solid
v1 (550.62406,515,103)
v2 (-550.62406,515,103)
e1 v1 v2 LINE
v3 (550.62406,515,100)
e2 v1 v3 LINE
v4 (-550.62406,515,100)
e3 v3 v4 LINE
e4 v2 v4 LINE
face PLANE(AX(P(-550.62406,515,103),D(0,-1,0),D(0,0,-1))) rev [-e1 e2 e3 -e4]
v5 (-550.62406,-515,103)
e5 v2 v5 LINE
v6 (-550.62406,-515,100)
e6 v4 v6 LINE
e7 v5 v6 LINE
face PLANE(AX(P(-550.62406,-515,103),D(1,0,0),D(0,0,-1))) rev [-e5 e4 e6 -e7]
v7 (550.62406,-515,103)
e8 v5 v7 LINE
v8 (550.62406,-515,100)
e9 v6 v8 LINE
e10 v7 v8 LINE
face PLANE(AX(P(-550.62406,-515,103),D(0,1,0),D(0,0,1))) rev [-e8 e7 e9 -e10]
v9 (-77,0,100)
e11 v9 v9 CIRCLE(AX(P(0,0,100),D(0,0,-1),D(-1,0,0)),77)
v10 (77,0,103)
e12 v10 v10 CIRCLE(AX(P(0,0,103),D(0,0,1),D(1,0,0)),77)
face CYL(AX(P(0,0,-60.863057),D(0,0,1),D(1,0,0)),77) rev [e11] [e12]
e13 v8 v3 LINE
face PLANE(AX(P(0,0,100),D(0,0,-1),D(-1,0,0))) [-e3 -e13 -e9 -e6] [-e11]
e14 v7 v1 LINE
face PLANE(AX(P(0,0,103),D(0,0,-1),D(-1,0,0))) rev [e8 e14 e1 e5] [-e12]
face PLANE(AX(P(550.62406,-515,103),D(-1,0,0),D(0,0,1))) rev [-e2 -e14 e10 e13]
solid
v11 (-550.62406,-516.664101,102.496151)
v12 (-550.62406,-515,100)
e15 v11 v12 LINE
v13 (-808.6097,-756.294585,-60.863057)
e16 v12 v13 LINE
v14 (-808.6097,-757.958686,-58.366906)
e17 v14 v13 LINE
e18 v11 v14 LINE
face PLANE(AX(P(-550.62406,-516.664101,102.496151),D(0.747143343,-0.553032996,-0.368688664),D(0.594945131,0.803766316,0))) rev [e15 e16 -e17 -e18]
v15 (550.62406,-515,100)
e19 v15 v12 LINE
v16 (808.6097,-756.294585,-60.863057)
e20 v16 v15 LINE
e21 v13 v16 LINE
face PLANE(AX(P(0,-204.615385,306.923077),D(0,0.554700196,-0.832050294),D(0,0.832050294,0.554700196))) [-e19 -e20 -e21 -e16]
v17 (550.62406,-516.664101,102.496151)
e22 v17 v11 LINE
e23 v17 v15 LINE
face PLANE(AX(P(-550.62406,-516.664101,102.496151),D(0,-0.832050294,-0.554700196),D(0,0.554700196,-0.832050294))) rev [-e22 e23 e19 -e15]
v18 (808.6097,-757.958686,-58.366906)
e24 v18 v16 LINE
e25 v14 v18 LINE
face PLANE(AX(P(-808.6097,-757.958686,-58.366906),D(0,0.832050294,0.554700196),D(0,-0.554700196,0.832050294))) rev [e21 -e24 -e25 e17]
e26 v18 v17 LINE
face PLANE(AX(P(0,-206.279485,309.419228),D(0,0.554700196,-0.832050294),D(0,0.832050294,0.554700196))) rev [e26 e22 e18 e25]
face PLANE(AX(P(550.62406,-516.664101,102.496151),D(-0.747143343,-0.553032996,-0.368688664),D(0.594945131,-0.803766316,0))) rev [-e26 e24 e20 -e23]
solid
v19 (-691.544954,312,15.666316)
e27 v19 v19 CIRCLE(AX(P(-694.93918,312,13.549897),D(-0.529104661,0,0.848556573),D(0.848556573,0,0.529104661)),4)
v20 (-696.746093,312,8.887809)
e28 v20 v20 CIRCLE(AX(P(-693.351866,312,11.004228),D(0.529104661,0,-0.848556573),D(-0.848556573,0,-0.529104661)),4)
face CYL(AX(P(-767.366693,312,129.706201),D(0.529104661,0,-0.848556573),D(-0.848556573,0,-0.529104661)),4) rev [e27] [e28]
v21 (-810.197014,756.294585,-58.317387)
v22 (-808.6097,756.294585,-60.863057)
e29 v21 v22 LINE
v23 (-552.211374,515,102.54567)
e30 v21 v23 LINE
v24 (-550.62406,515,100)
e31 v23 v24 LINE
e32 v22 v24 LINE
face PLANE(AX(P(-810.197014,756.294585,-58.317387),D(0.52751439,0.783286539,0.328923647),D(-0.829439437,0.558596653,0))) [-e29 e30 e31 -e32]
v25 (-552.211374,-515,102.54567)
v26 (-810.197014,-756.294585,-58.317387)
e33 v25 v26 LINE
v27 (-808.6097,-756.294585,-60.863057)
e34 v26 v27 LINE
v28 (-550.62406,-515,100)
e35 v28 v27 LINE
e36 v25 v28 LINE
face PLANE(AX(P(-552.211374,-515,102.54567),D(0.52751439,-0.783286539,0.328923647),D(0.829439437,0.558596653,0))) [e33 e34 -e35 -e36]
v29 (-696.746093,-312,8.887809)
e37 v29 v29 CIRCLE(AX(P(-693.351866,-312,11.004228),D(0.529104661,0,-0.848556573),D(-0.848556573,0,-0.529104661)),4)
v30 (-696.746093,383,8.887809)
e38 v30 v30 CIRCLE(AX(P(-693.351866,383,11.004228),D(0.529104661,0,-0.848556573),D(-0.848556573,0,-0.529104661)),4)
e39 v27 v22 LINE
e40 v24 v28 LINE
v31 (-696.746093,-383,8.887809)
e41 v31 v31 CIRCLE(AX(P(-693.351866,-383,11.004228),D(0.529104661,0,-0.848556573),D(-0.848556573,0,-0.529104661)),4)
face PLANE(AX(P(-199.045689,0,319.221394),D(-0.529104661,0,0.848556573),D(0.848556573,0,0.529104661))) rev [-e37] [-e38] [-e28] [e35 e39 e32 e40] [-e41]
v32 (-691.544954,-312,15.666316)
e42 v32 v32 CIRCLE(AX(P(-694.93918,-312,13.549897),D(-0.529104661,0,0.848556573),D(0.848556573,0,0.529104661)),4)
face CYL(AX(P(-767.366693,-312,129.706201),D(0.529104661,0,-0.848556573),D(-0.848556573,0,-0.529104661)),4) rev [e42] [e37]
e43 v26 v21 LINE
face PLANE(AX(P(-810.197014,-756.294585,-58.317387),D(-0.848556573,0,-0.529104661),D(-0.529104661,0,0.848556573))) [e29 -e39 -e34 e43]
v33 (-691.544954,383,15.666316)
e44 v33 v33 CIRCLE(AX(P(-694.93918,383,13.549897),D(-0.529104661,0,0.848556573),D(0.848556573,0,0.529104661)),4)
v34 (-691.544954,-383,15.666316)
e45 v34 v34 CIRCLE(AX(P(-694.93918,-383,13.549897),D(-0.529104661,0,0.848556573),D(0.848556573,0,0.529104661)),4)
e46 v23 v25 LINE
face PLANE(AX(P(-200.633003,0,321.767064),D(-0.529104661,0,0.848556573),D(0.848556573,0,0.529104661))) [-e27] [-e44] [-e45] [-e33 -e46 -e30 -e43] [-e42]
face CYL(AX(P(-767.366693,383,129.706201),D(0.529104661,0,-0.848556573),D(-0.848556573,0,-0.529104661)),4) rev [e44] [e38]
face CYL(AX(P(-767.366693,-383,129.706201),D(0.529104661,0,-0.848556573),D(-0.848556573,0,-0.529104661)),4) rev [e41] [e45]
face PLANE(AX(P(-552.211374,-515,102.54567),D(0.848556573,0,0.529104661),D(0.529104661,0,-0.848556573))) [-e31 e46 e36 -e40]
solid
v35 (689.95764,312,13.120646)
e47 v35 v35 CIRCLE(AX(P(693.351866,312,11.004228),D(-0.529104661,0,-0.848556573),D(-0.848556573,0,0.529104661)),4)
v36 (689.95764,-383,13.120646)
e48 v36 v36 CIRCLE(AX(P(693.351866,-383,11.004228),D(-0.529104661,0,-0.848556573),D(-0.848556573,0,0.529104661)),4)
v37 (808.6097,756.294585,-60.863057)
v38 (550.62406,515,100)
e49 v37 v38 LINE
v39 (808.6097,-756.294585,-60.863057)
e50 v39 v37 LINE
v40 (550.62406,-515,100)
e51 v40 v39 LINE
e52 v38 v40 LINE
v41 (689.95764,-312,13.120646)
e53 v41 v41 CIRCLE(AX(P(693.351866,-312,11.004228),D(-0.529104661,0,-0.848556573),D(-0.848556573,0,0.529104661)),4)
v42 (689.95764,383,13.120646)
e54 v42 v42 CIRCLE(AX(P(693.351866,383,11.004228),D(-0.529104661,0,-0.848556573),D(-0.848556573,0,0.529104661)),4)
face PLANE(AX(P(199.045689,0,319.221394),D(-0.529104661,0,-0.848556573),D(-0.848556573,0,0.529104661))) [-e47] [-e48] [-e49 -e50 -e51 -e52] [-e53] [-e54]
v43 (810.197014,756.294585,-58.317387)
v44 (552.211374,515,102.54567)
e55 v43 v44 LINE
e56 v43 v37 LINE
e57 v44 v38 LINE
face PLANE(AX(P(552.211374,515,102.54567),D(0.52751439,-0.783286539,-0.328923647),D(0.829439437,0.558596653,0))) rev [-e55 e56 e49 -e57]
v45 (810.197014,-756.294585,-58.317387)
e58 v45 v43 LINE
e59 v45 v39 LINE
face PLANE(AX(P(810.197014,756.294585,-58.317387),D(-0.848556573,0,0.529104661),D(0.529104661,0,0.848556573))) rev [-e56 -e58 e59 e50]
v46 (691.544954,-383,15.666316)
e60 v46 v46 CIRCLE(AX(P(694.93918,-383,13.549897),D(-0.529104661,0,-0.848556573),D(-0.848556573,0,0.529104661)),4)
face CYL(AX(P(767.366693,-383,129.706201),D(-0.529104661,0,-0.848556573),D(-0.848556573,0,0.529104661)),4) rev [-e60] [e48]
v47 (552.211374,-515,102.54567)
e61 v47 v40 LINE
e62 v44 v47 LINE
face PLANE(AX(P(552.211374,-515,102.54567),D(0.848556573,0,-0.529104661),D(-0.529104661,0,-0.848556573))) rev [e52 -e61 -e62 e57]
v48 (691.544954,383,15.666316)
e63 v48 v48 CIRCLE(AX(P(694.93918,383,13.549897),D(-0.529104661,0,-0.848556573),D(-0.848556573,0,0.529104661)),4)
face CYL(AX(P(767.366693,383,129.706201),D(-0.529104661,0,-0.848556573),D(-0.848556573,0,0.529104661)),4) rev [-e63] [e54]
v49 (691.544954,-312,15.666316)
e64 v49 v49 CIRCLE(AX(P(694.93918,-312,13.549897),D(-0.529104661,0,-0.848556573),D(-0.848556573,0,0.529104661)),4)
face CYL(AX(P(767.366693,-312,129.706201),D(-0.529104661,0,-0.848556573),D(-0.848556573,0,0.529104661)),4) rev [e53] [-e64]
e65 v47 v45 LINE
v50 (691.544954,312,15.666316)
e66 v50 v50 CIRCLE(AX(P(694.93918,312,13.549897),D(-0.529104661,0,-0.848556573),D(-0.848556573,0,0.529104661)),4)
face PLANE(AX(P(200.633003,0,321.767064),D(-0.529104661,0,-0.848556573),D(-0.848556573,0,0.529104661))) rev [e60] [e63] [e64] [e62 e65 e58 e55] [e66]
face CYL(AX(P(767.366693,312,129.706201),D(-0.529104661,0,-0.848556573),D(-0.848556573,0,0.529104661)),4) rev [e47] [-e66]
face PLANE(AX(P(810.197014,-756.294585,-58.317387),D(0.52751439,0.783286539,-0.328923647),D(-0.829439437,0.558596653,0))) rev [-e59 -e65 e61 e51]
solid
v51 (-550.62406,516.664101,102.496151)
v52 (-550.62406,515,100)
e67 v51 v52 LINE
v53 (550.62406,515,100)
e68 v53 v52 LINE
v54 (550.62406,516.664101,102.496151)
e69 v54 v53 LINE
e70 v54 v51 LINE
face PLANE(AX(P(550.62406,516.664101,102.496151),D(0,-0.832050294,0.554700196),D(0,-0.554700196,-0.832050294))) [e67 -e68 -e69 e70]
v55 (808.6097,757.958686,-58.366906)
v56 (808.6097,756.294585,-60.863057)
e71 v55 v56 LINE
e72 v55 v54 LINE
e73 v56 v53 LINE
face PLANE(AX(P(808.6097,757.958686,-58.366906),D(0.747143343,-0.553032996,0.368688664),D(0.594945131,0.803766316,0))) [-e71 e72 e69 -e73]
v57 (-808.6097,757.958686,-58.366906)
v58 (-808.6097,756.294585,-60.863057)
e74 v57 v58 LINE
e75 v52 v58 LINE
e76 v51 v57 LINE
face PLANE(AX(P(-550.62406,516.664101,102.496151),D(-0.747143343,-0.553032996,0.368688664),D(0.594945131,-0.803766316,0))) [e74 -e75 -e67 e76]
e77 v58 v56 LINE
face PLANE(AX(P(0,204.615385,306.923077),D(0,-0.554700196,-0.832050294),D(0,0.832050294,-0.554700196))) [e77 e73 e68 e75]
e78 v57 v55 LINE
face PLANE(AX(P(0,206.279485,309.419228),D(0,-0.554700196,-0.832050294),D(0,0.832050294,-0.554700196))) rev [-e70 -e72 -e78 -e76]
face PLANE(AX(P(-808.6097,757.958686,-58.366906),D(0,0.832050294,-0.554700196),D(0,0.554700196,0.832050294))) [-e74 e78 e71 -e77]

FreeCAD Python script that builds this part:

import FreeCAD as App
import Part
import Sketcher
from FreeCAD import Vector
Q = App.Units.Quantity

doc = App.newDocument("Part")
body = doc.addObject("PartDesign::Body", "Body")

sketch1 = body.newObject("Sketcher::SketchObject", "Sketch")
sketch1.Placement = App.Placement(Vector(0, -204.615385, 306.923077), App.Rotation(Vector(1, 0, 0), Vector(0, 0.832050294, 0.554700196), Vector(0, -0.554700196, 0.832050294), "ZXY"))
sketch1.addGeometry(Part.LineSegment(Vector(550.62406, -373.035882, 0), Vector(-550.62406, -373.035882, 0)), False)
sketch1.addGeometry(Part.LineSegment(Vector(-550.62406, -373.035882, 0), Vector(-711, -553.313445, 0)), False)
sketch1.addGeometry(Part.LineSegment(Vector(-711, -553.313445, 0), Vector(-808.6097, -663.035881, 0)), False)
sketch1.addGeometry(Part.LineSegment(Vector(-808.6097, -663.035881, 0), Vector(808.6097, -663.035881, 0)), False)
sketch1.addGeometry(Part.LineSegment(Vector(808.6097, -663.035881, 0), Vector(711, -553.313445, 0)), False)
sketch1.addGeometry(Part.LineSegment(Vector(711, -553.313445, 0), Vector(550.62406, -373.035882, 0)), False)
sketch1.addConstraint(Sketcher.Constraint("Coincident", 0, 2, 1, 1))
sketch1.addConstraint(Sketcher.Constraint("Coincident", 1, 2, 2, 1))
sketch1.addConstraint(Sketcher.Constraint("Coincident", 2, 2, 3, 1))
sketch1.addConstraint(Sketcher.Constraint("Coincident", 3, 2, 4, 1))
sketch1.addConstraint(Sketcher.Constraint("Coincident", 4, 2, 5, 1))
sketch1.addConstraint(Sketcher.Constraint("Coincident", 5, 2, 0, 1))
sketch1.addConstraint(Sketcher.Constraint("Horizontal", 0))
sketch1.addConstraint(Sketcher.Constraint("Horizontal", 3))
sketch1.addConstraint(Sketcher.Constraint("Symmetric", 1, 2, 4, 2, -2))
sketch1.addConstraint(Sketcher.Constraint("Parallel", 1, 2))
sketch1.addConstraint(Sketcher.Constraint("Parallel", 4, 5))
sketch1.addConstraint(Sketcher.Constraint("Equal", 2, 4))
sketch1.addConstraint(Sketcher.Constraint("DistanceX", 1, 2, -1, 1, Q("711 mm")))
sketch1.addConstraint(Sketcher.Constraint("DistanceY", 2, 2, 0, 2, Q("290 mm")))
sketch1.addConstraint(Sketcher.Constraint("DistanceX", 3, 1, 3, 2, Q("1617.219399 mm")))
sketch1.addConstraint(Sketcher.Constraint("DistanceX", 0, 2, 0, 1, Q("1101.24812 mm")))
sketch1.addConstraint(Sketcher.Constraint("DistanceY", 0, 2, -1, 1, Q("373.035882 mm")))
pad1 = body.newObject("PartDesign::Pad", "Pad")
pad1.Profile = sketch1
pad1.Length = 3
body2 = doc.addObject("PartDesign::Body", "Body001")

sketch2 = body2.newObject("Sketcher::SketchObject", "Sketch001")
sketch2.Placement = App.Placement(Vector(-199.045689, 0, 319.221394), App.Rotation(Vector(-0.848556573, 0, -0.529104661), Vector(0, 1, 0), Vector(0.529104661, 0, -0.848556573), "ZXY"))
sketch2.addGeometry(Part.LineSegment(Vector(414.325199, 515, 0), Vector(414.325199, -515, 0)), False)
sketch2.addGeometry(Part.LineSegment(Vector(414.325199, -515, 0), Vector(718.354003, -756.294585, 0)), False)
sketch2.addGeometry(Part.LineSegment(Vector(718.354003, -756.294585, 0), Vector(718.354003, 756.294585, 0)), False)
sketch2.addGeometry(Part.LineSegment(Vector(718.354003, 756.294585, 0), Vector(414.325199, 515, 0)), False)
sketch2.addConstraint(Sketcher.Constraint("Coincident", 0, 2, 1, 1))
sketch2.addConstraint(Sketcher.Constraint("Coincident", 1, 2, 2, 1))
sketch2.addConstraint(Sketcher.Constraint("Coincident", 2, 2, 3, 1))
sketch2.addConstraint(Sketcher.Constraint("Coincident", 3, 2, 0, 1))
sketch2.addConstraint(Sketcher.Constraint("Vertical", 0))
sketch2.addConstraint(Sketcher.Constraint("Vertical", 2))
sketch2.addConstraint(Sketcher.Constraint("Equal", 1, 3))
sketch2.addConstraint(Sketcher.Constraint("DistanceY", 0, 2, 0, 1, Q("1030 mm")))
sketch2.addConstraint(Sketcher.Constraint("DistanceY", 0, 2, -1, 1, Q("515 mm")))
sketch2.addConstraint(Sketcher.Constraint("DistanceY", 2, 1, 2, 2, Q("1512.58917 mm")))
sketch2.addConstraint(Sketcher.Constraint("DistanceX", -1, 1, 0, 2, Q("414.325199 mm")))
sketch2.addConstraint(Sketcher.Constraint("Distance", 1, Q("388.145063 mm")))
pad2 = body2.newObject("PartDesign::Pad", "Pad001")
pad2.Profile = sketch2
pad2.Length = 3
pad2.Reversed = True

sketch3 = body2.newObject("Sketcher::SketchObject", "Sketch002")
sketch3.Placement = App.Placement(Vector(-199.045689, 0, 319.221394), App.Rotation(Vector(-0.848556573, 0, -0.529104661), Vector(0, 1, 0), Vector(0.529104661, 0, -0.848556573), "ZXY"))
sketch3.addGeometry(Part.Circle(Vector(582.525895, -383, 0), Vector(0, 0, 1), 4), False)
sketch3.addGeometry(Part.Circle(Vector(582.525895, -312, 0), Vector(0, 0, 1), 4), False)
sketch3.addGeometry(Part.Circle(Vector(582.525895, 312, 0), Vector(0, 0, 1), 4), False)
sketch3.addGeometry(Part.Circle(Vector(582.525895, 383, 0), Vector(0, 0, 1), 4), False)
sketch3.addConstraint(Sketcher.Constraint("Equal", 0, 1))
sketch3.addConstraint(Sketcher.Constraint("Equal", 1, 2))
sketch3.addConstraint(Sketcher.Constraint("Equal", 2, 3))
sketch3.addConstraint(Sketcher.Constraint("Symmetric", 1, 3, 2, 3, -1))
sketch3.addConstraint(Sketcher.Constraint("Symmetric", 0, 3, 3, 3, -1))
sketch3.addConstraint(Sketcher.Constraint("Vertical", 0, 3, 1, 3))
sketch3.addConstraint(Sketcher.Constraint("Diameter", 0, Q("8 mm")))
sketch3.addConstraint(Sketcher.Constraint("DistanceY", 0, 3, -1, 1, Q("383 mm")))
sketch3.addConstraint(Sketcher.Constraint("DistanceY", 1, 3, -1, 1, Q("312 mm")))
sketch3.addConstraint(Sketcher.Constraint("DistanceX", -1, 1, 0, 3, Q("582.525895 mm")))
pocket1 = body2.newObject("PartDesign::Pocket", "Pocket")
pocket1.Profile = sketch3
pocket1.Type = "ThroughAll"
body3 = doc.addObject("PartDesign::Body", "Body002")

sketch4 = body3.newObject("Sketcher::SketchObject", "Sketch003")
sketch4.Placement = App.Placement(Vector(199.045689, 0, 319.221394), App.Rotation(Vector(0.848556573, 0, -0.529104661), Vector(0, 1, 0), Vector(0.529104661, 0, 0.848556573), "ZXY"))
sketch4.addGeometry(Part.LineSegment(Vector(414.325199, 515, 0), Vector(414.325199, -515, 0)), False)
sketch4.addGeometry(Part.LineSegment(Vector(414.325199, -515, 0), Vector(718.354003, -756.294585, 0)), False)
sketch4.addGeometry(Part.LineSegment(Vector(718.354003, -756.294585, 0), Vector(718.354003, 756.294585, 0)), False)
sketch4.addGeometry(Part.LineSegment(Vector(718.354003, 756.294585, 0), Vector(414.325199, 515, 0)), False)
sketch4.addConstraint(Sketcher.Constraint("Coincident", 0, 2, 1, 1))
sketch4.addConstraint(Sketcher.Constraint("Coincident", 1, 2, 2, 1))
sketch4.addConstraint(Sketcher.Constraint("Coincident", 2, 2, 3, 1))
sketch4.addConstraint(Sketcher.Constraint("Coincident", 3, 2, 0, 1))
sketch4.addConstraint(Sketcher.Constraint("Vertical", 0))
sketch4.addConstraint(Sketcher.Constraint("Vertical", 2))
sketch4.addConstraint(Sketcher.Constraint("Equal", 1, 3))
sketch4.addConstraint(Sketcher.Constraint("DistanceY", 0, 2, 0, 1, Q("1030 mm")))
sketch4.addConstraint(Sketcher.Constraint("DistanceY", 0, 2, -1, 1, Q("515 mm")))
sketch4.addConstraint(Sketcher.Constraint("DistanceY", 2, 1, 2, 2, Q("1512.58917 mm")))
sketch4.addConstraint(Sketcher.Constraint("DistanceX", -1, 1, 0, 2, Q("414.325199 mm")))
sketch4.addConstraint(Sketcher.Constraint("Distance", 1, Q("388.145063 mm")))
pad3 = body3.newObject("PartDesign::Pad", "Pad002")
pad3.Profile = sketch4
pad3.Length = 3

sketch5 = body3.newObject("Sketcher::SketchObject", "Sketch004")
sketch5.Placement = App.Placement(Vector(199.045689, 0, 319.221394), App.Rotation(Vector(-0.848556573, 0, 0.529104661), Vector(0, 1, 0), Vector(-0.529104661, 0, -0.848556573), "ZXY"))
sketch5.addGeometry(Part.Circle(Vector(-582.525895, 383, 0), Vector(0, 0, 1), 4), False)
sketch5.addGeometry(Part.Circle(Vector(-582.525895, 312, 0), Vector(0, 0, 1), 4), False)
sketch5.addGeometry(Part.Circle(Vector(-582.525895, -312, 0), Vector(0, 0, 1), 4), False)
sketch5.addGeometry(Part.Circle(Vector(-582.525895, -383, 0), Vector(0, 0, 1), 4), False)
sketch5.addConstraint(Sketcher.Constraint("Equal", 0, 1))
sketch5.addConstraint(Sketcher.Constraint("Equal", 1, 2))
sketch5.addConstraint(Sketcher.Constraint("Equal", 2, 3))
sketch5.addConstraint(Sketcher.Constraint("Symmetric", 1, 3, 2, 3, -1))
sketch5.addConstraint(Sketcher.Constraint("Symmetric", 0, 3, 3, 3, -1))
sketch5.addConstraint(Sketcher.Constraint("Vertical", 0, 3, 1, 3))
sketch5.addConstraint(Sketcher.Constraint("Diameter", 0, Q("8 mm")))
sketch5.addConstraint(Sketcher.Constraint("DistanceY", -1, 1, 0, 3, Q("383 mm")))
sketch5.addConstraint(Sketcher.Constraint("DistanceY", -1, 1, 1, 3, Q("312 mm")))
sketch5.addConstraint(Sketcher.Constraint("DistanceX", 0, 3, -1, 1, Q("582.525895 mm")))
pocket2 = body3.newObject("PartDesign::Pocket", "Pocket001")
pocket2.Profile = sketch5
pocket2.Type = "ThroughAll"
body4 = doc.addObject("PartDesign::Body", "Body003")

sketch6 = body4.newObject("Sketcher::SketchObject", "Sketch005")
sketch6.Placement = App.Placement(Vector(0, 204.615385, 306.923077), App.Rotation(Vector(-1, 0, 0), Vector(0, 0.832050294, -0.554700196), Vector(0, -0.554700196, -0.832050294), "ZXY"))
sketch6.addGeometry(Part.LineSegment(Vector(-550.62406, 373.035882, 0), Vector(550.62406, 373.035882, 0)), False)
sketch6.addGeometry(Part.LineSegment(Vector(550.62406, 373.035882, 0), Vector(808.6097, 663.035881, 0)), False)
sketch6.addGeometry(Part.LineSegment(Vector(808.6097, 663.035881, 0), Vector(-808.6097, 663.035881, 0)), False)
sketch6.addGeometry(Part.LineSegment(Vector(-808.6097, 663.035881, 0), Vector(-550.62406, 373.035882, 0)), False)
sketch6.addConstraint(Sketcher.Constraint("Coincident", 0, 2, 1, 1))
sketch6.addConstraint(Sketcher.Constraint("Coincident", 1, 2, 2, 1))
sketch6.addConstraint(Sketcher.Constraint("Coincident", 2, 2, 3, 1))
sketch6.addConstraint(Sketcher.Constraint("Coincident", 3, 2, 0, 1))
sketch6.addConstraint(Sketcher.Constraint("Horizontal", 0))
sketch6.addConstraint(Sketcher.Constraint("Horizontal", 2))
sketch6.addConstraint(Sketcher.Constraint("Equal", 1, 3))
sketch6.addConstraint(Sketcher.Constraint("DistanceY", 0, 2, 1, 2, Q("290 mm")))
sketch6.addConstraint(Sketcher.Constraint("DistanceX", 2, 2, 2, 1, Q("1617.219399 mm")))
sketch6.addConstraint(Sketcher.Constraint("DistanceX", 0, 1, 0, 2, Q("1101.24812 mm")))
sketch6.addConstraint(Sketcher.Constraint("DistanceX", -1, 1, 1, 2, Q("808.6097 mm")))
sketch6.addConstraint(Sketcher.Constraint("DistanceY", -1, 1, 0, 2, Q("373.035882 mm")))
pad4 = body4.newObject("PartDesign::Pad", "Pad003")
pad4.Profile = sketch6
pad4.Length = 3
pad4.Reversed = True
body5 = doc.addObject("PartDesign::Body", "Body004")

sketch7 = body5.newObject("Sketcher::SketchObject", "Sketch006")
sketch7.AttachmentSupport = (doc.getObject("XY_Plane004"), [""])
sketch7.MapMode = "FlatFace"
sketch7.AttachmentOffset = App.Placement(Vector(0, 0, 100), App.Rotation())
sketch7.addGeometry(Part.LineSegment(Vector(-550.62406, 515, 0), Vector(-550.62406, -515, 0)), False)
sketch7.addGeometry(Part.LineSegment(Vector(-550.62406, -515, 0), Vector(550.62406, -515, 0)), False)
sketch7.addGeometry(Part.LineSegment(Vector(550.62406, -515, 0), Vector(550.62406, 515, 0)), False)
sketch7.addGeometry(Part.LineSegment(Vector(550.62406, 515, 0), Vector(-550.62406, 515, 0)), False)
sketch7.addConstraint(Sketcher.Constraint("Coincident", 0, 2, 1, 1))
sketch7.addConstraint(Sketcher.Constraint("Coincident", 1, 2, 2, 1))
sketch7.addConstraint(Sketcher.Constraint("Coincident", 2, 2, 3, 1))
sketch7.addConstraint(Sketcher.Constraint("Coincident", 3, 2, 0, 1))
sketch7.addConstraint(Sketcher.Constraint("Vertical", 0))
sketch7.addConstraint(Sketcher.Constraint("Horizontal", 1))
sketch7.addConstraint(Sketcher.Constraint("Vertical", 2))
sketch7.addConstraint(Sketcher.Constraint("Horizontal", 3))
sketch7.addConstraint(Sketcher.Constraint("Symmetric", 0, 2, 2, 2, -1, 1))
sketch7.addConstraint(Sketcher.Constraint("DistanceY", 0, 2, 0, 1, Q("1030 mm")))
sketch7.addConstraint(Sketcher.Constraint("DistanceX", 1, 1, 1, 2, Q("1101.24812 mm")))
pad5 = body5.newObject("PartDesign::Pad", "Pad004")
pad5.Profile = sketch7
pad5.Length = 3

sketch8 = body5.newObject("Sketcher::SketchObject", "Sketch007")
sketch8.AttachmentSupport = (doc.getObject("XY_Plane004"), [""])
sketch8.MapMode = "FlatFace"
sketch8.AttachmentOffset = App.Placement(Vector(0, 0, 103), App.Rotation())
sketch8.addGeometry(Part.Circle(Vector(0, 0, 0), Vector(0, 0, 1), 77), False)
sketch8.addConstraint(Sketcher.Constraint("Coincident", 0, 3, -1, 1))
sketch8.addConstraint(Sketcher.Constraint("Diameter", 0, Q("154 mm")))
pocket3 = body5.newObject("PartDesign::Pocket", "Pocket002")
pocket3.Profile = sketch8
pocket3.Type = "ThroughAll"

doc.recompute()
